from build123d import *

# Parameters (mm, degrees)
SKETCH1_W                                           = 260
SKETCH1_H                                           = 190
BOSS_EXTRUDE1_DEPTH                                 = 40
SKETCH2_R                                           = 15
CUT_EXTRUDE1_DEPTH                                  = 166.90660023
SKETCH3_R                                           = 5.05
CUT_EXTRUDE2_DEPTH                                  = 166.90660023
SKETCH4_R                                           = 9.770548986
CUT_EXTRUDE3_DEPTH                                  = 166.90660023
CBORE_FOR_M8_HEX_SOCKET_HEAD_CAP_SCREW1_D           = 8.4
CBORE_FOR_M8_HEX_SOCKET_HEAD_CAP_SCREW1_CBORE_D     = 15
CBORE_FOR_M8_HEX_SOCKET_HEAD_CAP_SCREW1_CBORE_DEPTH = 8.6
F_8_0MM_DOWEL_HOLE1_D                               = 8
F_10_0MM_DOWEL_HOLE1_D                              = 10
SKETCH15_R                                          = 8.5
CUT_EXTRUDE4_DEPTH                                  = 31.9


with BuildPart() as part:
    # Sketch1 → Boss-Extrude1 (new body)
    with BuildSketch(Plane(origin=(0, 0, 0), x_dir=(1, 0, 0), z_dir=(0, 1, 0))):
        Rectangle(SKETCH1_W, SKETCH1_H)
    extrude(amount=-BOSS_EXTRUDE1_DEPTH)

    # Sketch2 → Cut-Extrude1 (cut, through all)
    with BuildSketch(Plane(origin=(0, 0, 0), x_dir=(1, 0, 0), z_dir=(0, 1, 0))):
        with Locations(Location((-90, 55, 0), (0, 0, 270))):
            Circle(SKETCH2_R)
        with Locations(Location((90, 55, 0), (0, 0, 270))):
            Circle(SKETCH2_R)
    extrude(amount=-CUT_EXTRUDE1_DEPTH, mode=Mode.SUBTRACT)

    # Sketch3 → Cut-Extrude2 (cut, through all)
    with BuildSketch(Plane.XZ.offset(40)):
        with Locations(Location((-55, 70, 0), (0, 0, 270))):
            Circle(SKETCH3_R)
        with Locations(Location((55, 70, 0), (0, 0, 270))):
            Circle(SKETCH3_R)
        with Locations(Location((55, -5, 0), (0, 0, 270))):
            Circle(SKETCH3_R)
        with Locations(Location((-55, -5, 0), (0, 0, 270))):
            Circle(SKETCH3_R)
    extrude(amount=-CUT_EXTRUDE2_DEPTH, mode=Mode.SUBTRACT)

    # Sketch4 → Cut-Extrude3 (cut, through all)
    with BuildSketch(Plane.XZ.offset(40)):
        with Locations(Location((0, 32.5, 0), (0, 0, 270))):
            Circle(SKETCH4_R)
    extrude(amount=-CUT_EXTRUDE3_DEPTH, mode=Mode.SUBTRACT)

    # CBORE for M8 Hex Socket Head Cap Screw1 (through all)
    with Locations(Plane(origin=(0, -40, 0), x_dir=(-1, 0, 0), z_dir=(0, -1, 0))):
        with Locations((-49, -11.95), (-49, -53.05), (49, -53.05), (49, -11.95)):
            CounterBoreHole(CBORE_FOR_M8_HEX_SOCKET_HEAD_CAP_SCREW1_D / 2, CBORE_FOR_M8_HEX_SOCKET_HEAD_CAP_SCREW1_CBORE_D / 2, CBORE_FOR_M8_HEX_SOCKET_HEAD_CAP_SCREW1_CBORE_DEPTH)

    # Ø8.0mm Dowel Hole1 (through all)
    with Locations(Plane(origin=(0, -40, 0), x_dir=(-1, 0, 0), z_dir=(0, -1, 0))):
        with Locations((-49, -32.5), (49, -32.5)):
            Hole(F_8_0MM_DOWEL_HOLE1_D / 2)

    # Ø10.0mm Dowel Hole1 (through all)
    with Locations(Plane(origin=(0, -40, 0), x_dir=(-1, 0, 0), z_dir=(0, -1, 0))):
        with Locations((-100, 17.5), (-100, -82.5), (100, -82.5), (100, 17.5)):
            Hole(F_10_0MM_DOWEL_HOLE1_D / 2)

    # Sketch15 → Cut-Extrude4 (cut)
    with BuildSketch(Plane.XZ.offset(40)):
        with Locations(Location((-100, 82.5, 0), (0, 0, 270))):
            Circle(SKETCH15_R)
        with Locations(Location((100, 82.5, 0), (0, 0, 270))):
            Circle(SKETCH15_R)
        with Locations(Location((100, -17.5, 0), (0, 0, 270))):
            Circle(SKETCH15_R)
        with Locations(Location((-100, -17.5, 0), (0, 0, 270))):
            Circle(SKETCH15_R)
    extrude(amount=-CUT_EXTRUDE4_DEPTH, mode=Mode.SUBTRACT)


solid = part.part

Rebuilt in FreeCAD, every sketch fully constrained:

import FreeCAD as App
import Part
import Sketcher

doc = App.newDocument("Part")
body = doc.addObject("PartDesign::Body", "Body")

sketch1 = doc.addObject("Sketcher::SketchObject", "Sketch")
body.addObject(sketch1)
sketch1.AttachmentSupport = (doc.XZ_Plane, [""])
sketch1.MapMode = "FlatFace"
sketch1.addGeometry([
    Part.LineSegment(App.Vector(-130, -95, 0), App.Vector(-130, 95, 0)),
    Part.LineSegment(App.Vector(-130, 95, 0), App.Vector(130, 95, 0)),
    Part.LineSegment(App.Vector(130, 95, 0), App.Vector(130, -95, 0)),
    Part.LineSegment(App.Vector(130, -95, 0), App.Vector(-130, -95, 0)),
], False)
sketch1.addConstraint([
    Sketcher.Constraint("Coincident", 0, 2, 1, 1),
    Sketcher.Constraint("Coincident", 1, 2, 2, 1),
    Sketcher.Constraint("Coincident", 2, 2, 3, 1),
    Sketcher.Constraint("Coincident", 3, 2, 0, 1),
    Sketcher.Constraint("Vertical", 0),
    Sketcher.Constraint("Horizontal", 1),
    Sketcher.Constraint("Vertical", 2),
    Sketcher.Constraint("Horizontal", 3),
    Sketcher.Constraint("Symmetric", 0, 2, 2, 2, -1, 1),
    Sketcher.Constraint("DistanceX", 1, 1, 1, 2, 260.0),
    Sketcher.Constraint("DistanceY", 0, 1, 0, 2, 190.0),
])
pad1 = doc.addObject("PartDesign::Pad", "Pad")
body.addObject(pad1)
pad1.Profile = sketch1
pad1.Length = 40

sketch2 = doc.addObject("Sketcher::SketchObject", "Sketch001")
body.addObject(sketch2)
sketch2.AttachmentSupport = (doc.XZ_Plane, [""])
sketch2.MapMode = "FlatFace"
sketch2.addGeometry([
    Part.Circle(App.Vector(-90, -55, 0), App.Vector(0, 0, 1), 15),
    Part.Circle(App.Vector(90, -55, 0), App.Vector(0, 0, 1), 15),
], False)
sketch2.addConstraint([
    Sketcher.Constraint("Equal", 0, 1),
    Sketcher.Constraint("Symmetric", 0, 3, 1, 3, -2),
    Sketcher.Constraint("Diameter", 0, 30.0),
    Sketcher.Constraint("DistanceX", 0, 3, -1, 1, 90.0),
    Sketcher.Constraint("DistanceY", 0, 3, -1, 1, 55.0),
])
pocket1 = doc.addObject("PartDesign::Pocket", "Pocket")
body.addObject(pocket1)
pocket1.Profile = sketch2
pocket1.Type = "ThroughAll"
pocket1.Reversed = True

sketch3 = doc.addObject("Sketcher::SketchObject", "Sketch002")
body.addObject(sketch3)
sketch3.AttachmentSupport = (doc.XZ_Plane, [""])
sketch3.MapMode = "FlatFace"
sketch3.AttachmentOffset = App.Placement(App.Vector(0, 0, 40), App.Rotation())
sketch3.addGeometry([
    Part.Circle(App.Vector(-55, 70, 0), App.Vector(0, 0, 1), 5),
    Part.Circle(App.Vector(55, 70, 0), App.Vector(0, 0, 1), 5),
    Part.Circle(App.Vector(55, -5, 0), App.Vector(0, 0, 1), 5),
    Part.Circle(App.Vector(-55, -5, 0), App.Vector(0, 0, 1), 5),
], False)
sketch3.addConstraint([
    Sketcher.Constraint("Equal", 0, 1),
    Sketcher.Constraint("Equal", 1, 2),
    Sketcher.Constraint("Equal", 2, 3),
    Sketcher.Constraint("Symmetric", 0, 3, 1, 3, -2),
    Sketcher.Constraint("Symmetric", 2, 3, 3, 3, -2),
    Sketcher.Constraint("Vertical", 1, 3, 2, 3),
    Sketcher.Constraint("Diameter", 0, 10.1),
    Sketcher.Constraint("DistanceX", 0, 3, -1, 1, 55.0),
    Sketcher.Constraint("DistanceY", -1, 1, 0, 3, 70.0),
    Sketcher.Constraint("DistanceY", 2, 3, -1, 1, 5.0),
])
pocket2 = doc.addObject("PartDesign::Pocket", "Pocket001")
body.addObject(pocket2)
pocket2.Profile = sketch3
pocket2.Type = "ThroughAll"

sketch4 = doc.addObject("Sketcher::SketchObject", "Sketch003")
body.addObject(sketch4)
sketch4.AttachmentSupport = (doc.XZ_Plane, [""])
sketch4.MapMode = "FlatFace"
sketch4.AttachmentOffset = App.Placement(App.Vector(0, 0, 40), App.Rotation())
sketch4.addGeometry(Part.Circle(App.Vector(0, 32, 0), App.Vector(0, 0, 1), 10), False)
sketch4.addConstraint([
    Sketcher.Constraint("PointOnObject", 0, 3, -2),
    Sketcher.Constraint("DistanceY", -1, 1, 0, 3, 32.5),
    Sketcher.Constraint("Diameter", 0, 19.541098),
])
pocket3 = doc.addObject("PartDesign::Pocket", "Pocket002")
body.addObject(pocket3)
pocket3.Profile = sketch4
pocket3.Type = "ThroughAll"

sketch5 = doc.addObject("Sketcher::SketchObject", "Sketch004")
body.addObject(sketch5)
sketch5.AttachmentSupport = (doc.XZ_Plane, [""])
sketch5.MapMode = "FlatFace"
sketch5.AttachmentOffset = App.Placement(App.Vector(0, 0, 40), App.Rotation())
sketch5.addGeometry([
    Part.Circle(App.Vector(49, 11.9, 0), App.Vector(0, 0, 1), 4.2),
    Part.Circle(App.Vector(49, 53, 0), App.Vector(0, 0, 1), 4.2),
    Part.Circle(App.Vector(-49, 53, 0), App.Vector(0, 0, 1), 4.2),
    Part.Circle(App.Vector(-49, 11.9, 0), App.Vector(0, 0, 1), 4.2),
], False)
sketch5.addConstraint([
    Sketcher.Constraint("Equal", 0, 1),
    Sketcher.Constraint("Equal", 1, 2),
    Sketcher.Constraint("Equal", 2, 3),
    Sketcher.Constraint("Symmetric", 1, 3, 2, 3, -2),
    Sketcher.Constraint("Symmetric", 0, 3, 3, 3, -2),
    Sketcher.Constraint("Vertical", 0, 3, 1, 3),
    Sketcher.Constraint("Diameter", 0, 8.4),
    Sketcher.Constraint("DistanceX", -1, 1, 0, 3, 49.0),
    Sketcher.Constraint("DistanceY", 0, 3, 1, 3, 41.1),
    Sketcher.Constraint("DistanceY", -1, 1, 0, 3, 11.95),
])
doc.recompute()
hole = doc.addObject("PartDesign::Hole", "Hole")
body.addObject(hole)
hole.Profile = sketch5
hole.ThreadType = "None"
hole.Diameter = 8.4
hole.DepthType = "ThroughAll"
hole.HoleCutType = "Counterbore"
hole.HoleCutDiameter = 15
hole.HoleCutDepth = 8.6

sketch6 = doc.addObject("Sketcher::SketchObject", "Sketch005")
body.addObject(sketch6)
sketch6.AttachmentSupport = (doc.XZ_Plane, [""])
sketch6.MapMode = "FlatFace"
sketch6.AttachmentOffset = App.Placement(App.Vector(0, 0, 40), App.Rotation())
sketch6.addGeometry([
    Part.Circle(App.Vector(49, 32.5, 0), App.Vector(0, 0, 1), 4),
    Part.Circle(App.Vector(-49, 32.5, 0), App.Vector(0, 0, 1), 4),
], False)
sketch6.addConstraint([
    Sketcher.Constraint("Equal", 0, 1),
    Sketcher.Constraint("Symmetric", 0, 3, 1, 3, -2),
    Sketcher.Constraint("Diameter", 0, 8.0),
    Sketcher.Constraint("DistanceX", -1, 1, 0, 3, 49.0),
    Sketcher.Constraint("DistanceY", -1, 1, 0, 3, 32.5),
])
doc.recompute()
hole2 = doc.addObject("PartDesign::Hole", "Hole001")
body.addObject(hole2)
hole2.Profile = sketch6
hole2.ThreadType = "None"
hole2.Diameter = 8
hole2.DepthType = "ThroughAll"

sketch7 = doc.addObject("Sketcher::SketchObject", "Sketch006")
body.addObject(sketch7)
sketch7.AttachmentSupport = (doc.XZ_Plane, [""])
sketch7.MapMode = "FlatFace"
sketch7.AttachmentOffset = App.Placement(App.Vector(0, 0, 40), App.Rotation())
sketch7.addGeometry([
    Part.Circle(App.Vector(100, -18, 0), App.Vector(0, 0, 1), 5),
    Part.Circle(App.Vector(100, 82, 0), App.Vector(0, 0, 1), 5),
    Part.Circle(App.Vector(-100, 82, 0), App.Vector(0, 0, 1), 5),
    Part.Circle(App.Vector(-100, -18, 0), App.Vector(0, 0, 1), 5),
], False)
sketch7.addConstraint([
    Sketcher.Constraint("Equal", 0, 1),
    Sketcher.Constraint("Equal", 1, 2),
    Sketcher.Constraint("Equal", 2, 3),
    Sketcher.Constraint("Symmetric", 1, 3, 2, 3, -2),
    Sketcher.Constraint("Symmetric", 0, 3, 3, 3, -2),
    Sketcher.Constraint("Vertical", 0, 3, 1, 3),
    Sketcher.Constraint("Diameter", 0, 10.0),
    Sketcher.Constraint("DistanceX", -1, 1, 0, 3, 100.0),
    Sketcher.Constraint("DistanceY", 0, 3, 1, 3, 100.0),
    Sketcher.Constraint("DistanceY", 0, 3, -1, 1, 17.5),
])
doc.recompute()
hole3 = doc.addObject("PartDesign::Hole", "Hole002")
body.addObject(hole3)
hole3.Profile = sketch7
hole3.ThreadType = "None"
hole3.Diameter = 10
hole3.DepthType = "ThroughAll"

sketch8 = doc.addObject("Sketcher::SketchObject", "Sketch007")
body.addObject(sketch8)
sketch8.AttachmentSupport = (doc.XZ_Plane, [""])
sketch8.MapMode = "FlatFace"
sketch8.AttachmentOffset = App.Placement(App.Vector(0, 0, 40), App.Rotation())
sketch8.addGeometry([
    Part.Circle(App.Vector(-100, 82, 0), App.Vector(0, 0, 1), 8),
    Part.Circle(App.Vector(100, 82, 0), App.Vector(0, 0, 1), 8),
    Part.Circle(App.Vector(100, -18, 0), App.Vector(0, 0, 1), 8),
    Part.Circle(App.Vector(-100, -18, 0), App.Vector(0, 0, 1), 8),
], False)
sketch8.addConstraint([
    Sketcher.Constraint("Equal", 0, 1),
    Sketcher.Constraint("Equal", 1, 2),
    Sketcher.Constraint("Equal", 2, 3),
    Sketcher.Constraint("Symmetric", 0, 3, 1, 3, -2),
    Sketcher.Constraint("Symmetric", 2, 3, 3, 3, -2),
    Sketcher.Constraint("Vertical", 1, 3, 2, 3),
    Sketcher.Constraint("Diameter", 0, 17.0),
    Sketcher.Constraint("DistanceX", 0, 3, -1, 1, 100.0),
    Sketcher.Constraint("DistanceY", 2, 3, 1, 3, 100.0),
    Sketcher.Constraint("DistanceY", -1, 1, 0, 3, 82.5),
])
pocket4 = doc.addObject("PartDesign::Pocket", "Pocket003")
body.addObject(pocket4)
pocket4.Profile = sketch8
pocket4.Length = 31.9

doc.recompute()
